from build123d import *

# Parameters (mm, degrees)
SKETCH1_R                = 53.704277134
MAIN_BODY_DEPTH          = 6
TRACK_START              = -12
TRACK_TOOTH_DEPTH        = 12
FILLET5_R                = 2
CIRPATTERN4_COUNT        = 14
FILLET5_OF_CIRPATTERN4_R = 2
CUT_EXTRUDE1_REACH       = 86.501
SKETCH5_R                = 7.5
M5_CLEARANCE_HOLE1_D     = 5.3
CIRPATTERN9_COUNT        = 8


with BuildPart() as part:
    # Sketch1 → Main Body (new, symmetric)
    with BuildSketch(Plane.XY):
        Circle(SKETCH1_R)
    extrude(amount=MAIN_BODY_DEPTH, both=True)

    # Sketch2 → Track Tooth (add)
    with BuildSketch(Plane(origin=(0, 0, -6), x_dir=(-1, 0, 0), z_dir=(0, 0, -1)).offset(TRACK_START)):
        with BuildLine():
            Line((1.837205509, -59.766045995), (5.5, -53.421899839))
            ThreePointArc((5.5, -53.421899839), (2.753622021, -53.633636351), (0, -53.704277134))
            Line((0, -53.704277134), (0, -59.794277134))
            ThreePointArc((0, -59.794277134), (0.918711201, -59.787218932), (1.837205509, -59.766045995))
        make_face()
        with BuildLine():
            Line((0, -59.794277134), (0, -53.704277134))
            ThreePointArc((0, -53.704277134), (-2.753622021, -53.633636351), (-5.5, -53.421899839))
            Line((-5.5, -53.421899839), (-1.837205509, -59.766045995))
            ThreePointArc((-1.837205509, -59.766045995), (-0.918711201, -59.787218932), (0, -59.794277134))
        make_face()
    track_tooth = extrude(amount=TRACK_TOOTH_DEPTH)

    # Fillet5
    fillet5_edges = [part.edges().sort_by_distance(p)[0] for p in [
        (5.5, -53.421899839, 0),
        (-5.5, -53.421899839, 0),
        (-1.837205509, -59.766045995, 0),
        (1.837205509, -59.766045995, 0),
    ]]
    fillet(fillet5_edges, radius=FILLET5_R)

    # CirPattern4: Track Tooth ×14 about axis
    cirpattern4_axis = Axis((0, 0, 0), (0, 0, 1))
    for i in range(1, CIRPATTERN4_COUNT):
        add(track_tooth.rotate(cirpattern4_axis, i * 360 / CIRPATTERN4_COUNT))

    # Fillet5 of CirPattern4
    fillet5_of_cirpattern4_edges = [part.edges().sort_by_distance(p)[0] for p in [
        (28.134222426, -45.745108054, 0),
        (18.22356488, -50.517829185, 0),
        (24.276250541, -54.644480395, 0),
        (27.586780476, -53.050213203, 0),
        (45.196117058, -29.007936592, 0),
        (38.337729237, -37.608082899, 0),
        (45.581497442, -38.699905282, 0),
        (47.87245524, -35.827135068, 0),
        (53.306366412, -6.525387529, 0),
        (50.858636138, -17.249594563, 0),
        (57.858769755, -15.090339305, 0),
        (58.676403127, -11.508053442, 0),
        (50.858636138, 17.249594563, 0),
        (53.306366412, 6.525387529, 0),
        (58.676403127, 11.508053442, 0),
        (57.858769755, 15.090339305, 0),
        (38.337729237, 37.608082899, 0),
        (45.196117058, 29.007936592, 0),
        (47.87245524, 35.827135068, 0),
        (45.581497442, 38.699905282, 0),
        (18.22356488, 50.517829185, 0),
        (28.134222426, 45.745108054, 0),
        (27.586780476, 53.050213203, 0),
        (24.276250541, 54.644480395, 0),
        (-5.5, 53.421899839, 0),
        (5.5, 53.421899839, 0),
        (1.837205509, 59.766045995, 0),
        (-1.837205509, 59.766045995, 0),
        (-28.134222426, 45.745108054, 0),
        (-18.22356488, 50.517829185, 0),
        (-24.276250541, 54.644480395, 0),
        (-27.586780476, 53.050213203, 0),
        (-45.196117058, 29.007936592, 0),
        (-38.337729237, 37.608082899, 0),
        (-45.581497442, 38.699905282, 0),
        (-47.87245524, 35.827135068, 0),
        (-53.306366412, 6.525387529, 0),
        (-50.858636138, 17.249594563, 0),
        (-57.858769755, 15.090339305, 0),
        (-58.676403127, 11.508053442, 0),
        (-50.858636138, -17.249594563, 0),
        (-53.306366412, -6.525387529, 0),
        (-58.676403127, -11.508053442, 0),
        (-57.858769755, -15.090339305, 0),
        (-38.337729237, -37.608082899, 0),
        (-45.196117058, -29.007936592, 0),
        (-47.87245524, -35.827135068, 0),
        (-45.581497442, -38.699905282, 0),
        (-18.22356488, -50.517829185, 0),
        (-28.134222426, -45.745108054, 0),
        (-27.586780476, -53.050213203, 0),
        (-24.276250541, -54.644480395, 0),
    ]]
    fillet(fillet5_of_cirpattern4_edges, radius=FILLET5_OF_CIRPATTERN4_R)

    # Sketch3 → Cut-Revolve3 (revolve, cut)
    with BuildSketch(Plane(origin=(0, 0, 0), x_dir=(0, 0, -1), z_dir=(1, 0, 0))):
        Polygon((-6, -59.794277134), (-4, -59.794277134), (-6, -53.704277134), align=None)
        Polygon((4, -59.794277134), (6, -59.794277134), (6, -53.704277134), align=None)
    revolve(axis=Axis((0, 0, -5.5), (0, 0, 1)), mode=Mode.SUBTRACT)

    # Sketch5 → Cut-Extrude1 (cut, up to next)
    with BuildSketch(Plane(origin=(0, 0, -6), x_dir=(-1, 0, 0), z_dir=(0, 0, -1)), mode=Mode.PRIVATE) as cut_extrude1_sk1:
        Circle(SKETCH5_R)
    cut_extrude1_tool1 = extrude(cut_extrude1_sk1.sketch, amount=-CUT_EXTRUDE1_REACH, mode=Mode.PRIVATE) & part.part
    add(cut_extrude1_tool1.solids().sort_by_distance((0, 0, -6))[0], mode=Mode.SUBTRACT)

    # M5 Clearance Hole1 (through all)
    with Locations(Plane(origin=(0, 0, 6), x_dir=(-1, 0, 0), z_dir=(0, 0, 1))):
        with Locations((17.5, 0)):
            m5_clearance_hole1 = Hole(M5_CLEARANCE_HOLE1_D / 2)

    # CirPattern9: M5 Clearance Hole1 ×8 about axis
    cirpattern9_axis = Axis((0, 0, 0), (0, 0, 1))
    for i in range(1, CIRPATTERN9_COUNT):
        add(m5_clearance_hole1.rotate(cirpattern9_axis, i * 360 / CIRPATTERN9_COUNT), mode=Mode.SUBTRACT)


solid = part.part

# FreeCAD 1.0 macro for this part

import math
import FreeCAD as App
import Part
import Sketcher
Q = App.Units.Quantity


def edges_at(feature, points):
    """Names of the edges that pass closest to the given points."""
    edges = feature.Shape.Edges
    near = lambda p: min(range(len(edges)), key=lambda i: edges[i].distToShape(Part.Vertex(*p))[0])
    return sorted({f"Edge{near(p) + 1}" for p in points})

doc = App.newDocument("Part")
body = doc.addObject("PartDesign::Body", "Body")

# Sketch on XY plane
sketch1 = doc.addObject("Sketcher::SketchObject", "Sketch")
body.addObject(sketch1)
sketch1.AttachmentSupport = (doc.XY_Plane, [""])
sketch1.MapMode = "FlatFace"
sketch1.addGeometry(Part.Circle(App.Vector(0, 0, 0), App.Vector(0, 0, 1), 54), False)
sketch1.addConstraint([
    Sketcher.Constraint("Coincident", 0, 3, -1, 1),
    Sketcher.Constraint("Diameter", 0, Q("107.408554 mm")),
])
pad1 = doc.addObject("PartDesign::Pad", "Pad")
body.addObject(pad1)
pad1.Profile = sketch1
pad1.Length = 12
pad1.Midplane = True

# Sketch on XY plane
sketch2 = doc.addObject("Sketcher::SketchObject", "Sketch001")
body.addObject(sketch2)
sketch2.AttachmentSupport = (doc.XY_Plane, [""])
sketch2.MapMode = "FlatFace"
sketch2.AttachmentOffset = App.Placement(App.Vector(0, 0, 6), App.Rotation())
sketch2.addGeometry([
    Part.LineSegment(App.Vector(-1.8, -59.8, 0), App.Vector(-5.5, -53.4, 0)),  # 0
    Part.ArcOfCircle(Part.Circle(App.Vector(0, 0, 0), App.Vector(0, 0, 1), 53.7), math.radians(-95.88), math.radians(-90)),  # 1
    Part.ArcOfCircle(Part.Circle(App.Vector(0, 0, 0), App.Vector(0, 0, 1), 53.7), math.radians(-90), math.radians(-84.12)),  # 2
    Part.LineSegment(App.Vector(5.5, -53.4, 0), App.Vector(1.8, -59.8, 0)),  # 3
    Part.ArcOfCircle(Part.Circle(App.Vector(0, 0, 0), App.Vector(0, 0, 1), 59.8), math.radians(-90), math.radians(-88.24)),  # 4
    Part.ArcOfCircle(Part.Circle(App.Vector(0, 0, 0), App.Vector(0, 0, 1), 59.8), math.radians(-91.76), math.radians(-90)),  # 5
], False)
sketch2.addConstraint([
    Sketcher.Constraint("Coincident", 0, 2, 1, 1),
    Sketcher.Constraint("Tangent", 1, 2, 2, 1),
    Sketcher.Constraint("Coincident", 2, 2, 3, 1),
    Sketcher.Constraint("Coincident", 3, 2, 4, 2),
    Sketcher.Constraint("Tangent", 4, 1, 5, 2),
    Sketcher.Constraint("Coincident", 5, 1, 0, 1),
    Sketcher.Constraint("Coincident", 1, 3, -1, 1),
    Sketcher.Constraint("Coincident", 4, 3, -1, 1),
    Sketcher.Constraint("Equal", 1, 2),
    Sketcher.Constraint("Equal", 4, 5),
    Sketcher.Constraint("PointOnObject", 1, 2, -2),
    Sketcher.Constraint("PointOnObject", 4, 1, -2),
    Sketcher.Constraint("Horizontal", 0, 2, 2, 2),
    Sketcher.Constraint("Horizontal", 3, 2, 5, 1),
    Sketcher.Constraint("Angle", 0, Q("120 deg")),
    Sketcher.Constraint("DistanceX", 0, 2, 2, 2, Q("11 mm")),
    Sketcher.Constraint("DistanceY", 4, 1, 1, 2, Q("6.09 mm")),
    Sketcher.Constraint("Radius", 1, Q("53.704277 mm")),
])
pad2 = doc.addObject("PartDesign::Pad", "Pad001")
body.addObject(pad2)
pad2.Profile = sketch2
pad2.Length = 12
pad2.Reversed = True
doc.recompute()

fillet = doc.addObject("PartDesign::Fillet", "Fillet")
body.addObject(fillet)
fillet.Base = (pad2, edges_at(pad2, [
    (5.5, -53.422, 0),
    (-5.5, -53.422, 0),
    (-1.837, -59.766, 0),
    (1.837, -59.766, 0),
]))
fillet.Radius = 2
doc.recompute()

polarpattern = doc.addObject("PartDesign::PolarPattern", "PolarPattern")
body.addObject(polarpattern)
polarpattern.Originals = [pad2]
polarpattern.Axis = (doc.Z_Axis, [""])
polarpattern.Angle = 360
polarpattern.Occurrences = 14
body.Tip = polarpattern
doc.recompute()

fillet2 = doc.addObject("PartDesign::Fillet", "Fillet001")
body.addObject(fillet2)
fillet2.Base = (polarpattern, edges_at(polarpattern, [
    (28.134, -45.745, 0),
    (18.224, -50.518, 0),
    (24.276, -54.644, 0),
    (27.587, -53.05, 0),
    (45.196, -29.008, 0),
    (38.338, -37.608, 0),
    (45.581, -38.7, 0),
    (47.872, -35.827, 0),
    (53.306, -6.525, 0),
    (50.859, -17.25, 0),
    (57.859, -15.09, 0),
    (58.676, -11.508, 0),
    (50.859, 17.25, 0),
    (53.306, 6.525, 0),
    (58.676, 11.508, 0),
    (57.859, 15.09, 0),
    (38.338, 37.608, 0),
    (45.196, 29.008, 0),
    (47.872, 35.827, 0),
    (45.581, 38.7, 0),
    (18.224, 50.518, 0),
    (28.134, 45.745, 0),
    (27.587, 53.05, 0),
    (24.276, 54.644, 0),
    (-5.5, 53.422, 0),
    (5.5, 53.422, 0),
    (1.837, 59.766, 0),
    (-1.837, 59.766, 0),
    (-28.134, 45.745, 0),
    (-18.224, 50.518, 0),
    (-24.276, 54.644, 0),
    (-27.587, 53.05, 0),
    (-45.196, 29.008, 0),
    (-38.338, 37.608, 0),
    (-45.581, 38.7, 0),
    (-47.872, 35.827, 0),
    (-53.306, 6.525, 0),
    (-50.859, 17.25, 0),
    (-57.859, 15.09, 0),
    (-58.676, 11.508, 0),
    (-50.859, -17.25, 0),
    (-53.306, -6.525, 0),
    (-58.676, -11.508, 0),
    (-57.859, -15.09, 0),
    (-38.338, -37.608, 0),
    (-45.196, -29.008, 0),
    (-47.872, -35.827, 0),
    (-45.581, -38.7, 0),
    (-18.224, -50.518, 0),
    (-28.134, -45.745, 0),
    (-27.587, -53.05, 0),
    (-24.276, -54.644, 0),
]))
fillet2.Radius = 2

# Sketch on YZ plane
sketch3 = doc.addObject("Sketcher::SketchObject", "Sketch002")
body.addObject(sketch3)
sketch3.AttachmentSupport = (doc.YZ_Plane, [""])
sketch3.MapMode = "FlatFace"
sketch3.addGeometry([
    Part.LineSegment(App.Vector(-59.8, 6, 0), App.Vector(-59.8, 4, 0)),  # 0
    Part.LineSegment(App.Vector(-59.8, 4, 0), App.Vector(-53.7, 6, 0)),  # 1
    Part.LineSegment(App.Vector(-53.7, 6, 0), App.Vector(-59.8, 6, 0)),  # 2
    Part.LineSegment(App.Vector(-59.8, -4, 0), App.Vector(-59.8, -6, 0)),  # 3
    Part.LineSegment(App.Vector(-59.8, -6, 0), App.Vector(-53.7, -6, 0)),  # 4
    Part.LineSegment(App.Vector(-53.7, -6, 0), App.Vector(-59.8, -4, 0)),  # 5
], False)
sketch3.addConstraint([
    Sketcher.Constraint("Coincident", 0, 2, 1, 1),
    Sketcher.Constraint("Coincident", 1, 2, 2, 1),
    Sketcher.Constraint("Coincident", 2, 2, 0, 1),
    Sketcher.Constraint("Coincident", 3, 2, 4, 1),
    Sketcher.Constraint("Coincident", 4, 2, 5, 1),
    Sketcher.Constraint("Coincident", 5, 2, 3, 1),
    Sketcher.Constraint("Vertical", 0),
    Sketcher.Constraint("Horizontal", 2),
    Sketcher.Constraint("Vertical", 3),
    Sketcher.Constraint("Horizontal", 4),
    Sketcher.Constraint("Symmetric", 2, 2, 3, 2, -1),
    Sketcher.Constraint("Vertical", 1, 2, 4, 2),
    Sketcher.Constraint("Equal", 0, 3),
    Sketcher.Constraint("DistanceY", 0, 2, 0, 1, Q("2 mm")),
    Sketcher.Constraint("DistanceY", -1, 1, 0, 2, Q("4 mm")),
    Sketcher.Constraint("DistanceX", 2, 2, 2, 1, Q("6.09 mm")),
    Sketcher.Constraint("DistanceX", 0, 2, -1, 1, Q("59.794277 mm")),
])
groove = doc.addObject("PartDesign::Groove", "Groove")
body.addObject(groove)
groove.Profile = sketch3
groove.ReferenceAxis = (sketch3, ["V_Axis"])
groove.Angle = 360

# Sketch on XY plane
sketch4 = doc.addObject("Sketcher::SketchObject", "Sketch003")
body.addObject(sketch4)
sketch4.AttachmentSupport = (doc.XY_Plane, [""])
sketch4.MapMode = "FlatFace"
sketch4.AttachmentOffset = App.Placement(App.Vector(0, 0, -6), App.Rotation())
sketch4.addGeometry(Part.Circle(App.Vector(0, 0, 0), App.Vector(0, 0, 1), 8), False)
sketch4.addConstraint([
    Sketcher.Constraint("Coincident", 0, 3, -1, 1),
    Sketcher.Constraint("Diameter", 0, Q("15 mm")),
])
pocket1 = doc.addObject("PartDesign::Pocket", "Pocket")
body.addObject(pocket1)
pocket1.Profile = sketch4
pocket1.Type = "UpToFirst"
pocket1.Reversed = True

# Sketch on XY plane
sketch5 = doc.addObject("Sketcher::SketchObject", "Sketch004")
body.addObject(sketch5)
sketch5.AttachmentSupport = (doc.XY_Plane, [""])
sketch5.MapMode = "FlatFace"
sketch5.AttachmentOffset = App.Placement(App.Vector(0, 0, 6), App.Rotation())
sketch5.addGeometry(Part.Circle(App.Vector(-17.5, 0, 0), App.Vector(0, 0, 1), 2.6), False)
sketch5.addConstraint([
    Sketcher.Constraint("PointOnObject", 0, 3, -1),
    Sketcher.Constraint("Diameter", 0, Q("5.3 mm")),
    Sketcher.Constraint("DistanceX", 0, 3, -1, 1, Q("17.5 mm")),
])
doc.recompute()
hole = doc.addObject("PartDesign::Hole", "Hole")
body.addObject(hole)
hole.Profile = sketch5
hole.ThreadType = "None"
hole.Diameter = 5.3
hole.DepthType = "ThroughAll"
doc.recompute()

polarpattern2 = doc.addObject("PartDesign::PolarPattern", "PolarPattern001")
body.addObject(polarpattern2)
polarpattern2.Originals = [hole]
polarpattern2.Axis = (doc.Z_Axis, [""])
polarpattern2.Angle = 360
polarpattern2.Occurrences = 8
body.Tip = polarpattern2

doc.recompute()
